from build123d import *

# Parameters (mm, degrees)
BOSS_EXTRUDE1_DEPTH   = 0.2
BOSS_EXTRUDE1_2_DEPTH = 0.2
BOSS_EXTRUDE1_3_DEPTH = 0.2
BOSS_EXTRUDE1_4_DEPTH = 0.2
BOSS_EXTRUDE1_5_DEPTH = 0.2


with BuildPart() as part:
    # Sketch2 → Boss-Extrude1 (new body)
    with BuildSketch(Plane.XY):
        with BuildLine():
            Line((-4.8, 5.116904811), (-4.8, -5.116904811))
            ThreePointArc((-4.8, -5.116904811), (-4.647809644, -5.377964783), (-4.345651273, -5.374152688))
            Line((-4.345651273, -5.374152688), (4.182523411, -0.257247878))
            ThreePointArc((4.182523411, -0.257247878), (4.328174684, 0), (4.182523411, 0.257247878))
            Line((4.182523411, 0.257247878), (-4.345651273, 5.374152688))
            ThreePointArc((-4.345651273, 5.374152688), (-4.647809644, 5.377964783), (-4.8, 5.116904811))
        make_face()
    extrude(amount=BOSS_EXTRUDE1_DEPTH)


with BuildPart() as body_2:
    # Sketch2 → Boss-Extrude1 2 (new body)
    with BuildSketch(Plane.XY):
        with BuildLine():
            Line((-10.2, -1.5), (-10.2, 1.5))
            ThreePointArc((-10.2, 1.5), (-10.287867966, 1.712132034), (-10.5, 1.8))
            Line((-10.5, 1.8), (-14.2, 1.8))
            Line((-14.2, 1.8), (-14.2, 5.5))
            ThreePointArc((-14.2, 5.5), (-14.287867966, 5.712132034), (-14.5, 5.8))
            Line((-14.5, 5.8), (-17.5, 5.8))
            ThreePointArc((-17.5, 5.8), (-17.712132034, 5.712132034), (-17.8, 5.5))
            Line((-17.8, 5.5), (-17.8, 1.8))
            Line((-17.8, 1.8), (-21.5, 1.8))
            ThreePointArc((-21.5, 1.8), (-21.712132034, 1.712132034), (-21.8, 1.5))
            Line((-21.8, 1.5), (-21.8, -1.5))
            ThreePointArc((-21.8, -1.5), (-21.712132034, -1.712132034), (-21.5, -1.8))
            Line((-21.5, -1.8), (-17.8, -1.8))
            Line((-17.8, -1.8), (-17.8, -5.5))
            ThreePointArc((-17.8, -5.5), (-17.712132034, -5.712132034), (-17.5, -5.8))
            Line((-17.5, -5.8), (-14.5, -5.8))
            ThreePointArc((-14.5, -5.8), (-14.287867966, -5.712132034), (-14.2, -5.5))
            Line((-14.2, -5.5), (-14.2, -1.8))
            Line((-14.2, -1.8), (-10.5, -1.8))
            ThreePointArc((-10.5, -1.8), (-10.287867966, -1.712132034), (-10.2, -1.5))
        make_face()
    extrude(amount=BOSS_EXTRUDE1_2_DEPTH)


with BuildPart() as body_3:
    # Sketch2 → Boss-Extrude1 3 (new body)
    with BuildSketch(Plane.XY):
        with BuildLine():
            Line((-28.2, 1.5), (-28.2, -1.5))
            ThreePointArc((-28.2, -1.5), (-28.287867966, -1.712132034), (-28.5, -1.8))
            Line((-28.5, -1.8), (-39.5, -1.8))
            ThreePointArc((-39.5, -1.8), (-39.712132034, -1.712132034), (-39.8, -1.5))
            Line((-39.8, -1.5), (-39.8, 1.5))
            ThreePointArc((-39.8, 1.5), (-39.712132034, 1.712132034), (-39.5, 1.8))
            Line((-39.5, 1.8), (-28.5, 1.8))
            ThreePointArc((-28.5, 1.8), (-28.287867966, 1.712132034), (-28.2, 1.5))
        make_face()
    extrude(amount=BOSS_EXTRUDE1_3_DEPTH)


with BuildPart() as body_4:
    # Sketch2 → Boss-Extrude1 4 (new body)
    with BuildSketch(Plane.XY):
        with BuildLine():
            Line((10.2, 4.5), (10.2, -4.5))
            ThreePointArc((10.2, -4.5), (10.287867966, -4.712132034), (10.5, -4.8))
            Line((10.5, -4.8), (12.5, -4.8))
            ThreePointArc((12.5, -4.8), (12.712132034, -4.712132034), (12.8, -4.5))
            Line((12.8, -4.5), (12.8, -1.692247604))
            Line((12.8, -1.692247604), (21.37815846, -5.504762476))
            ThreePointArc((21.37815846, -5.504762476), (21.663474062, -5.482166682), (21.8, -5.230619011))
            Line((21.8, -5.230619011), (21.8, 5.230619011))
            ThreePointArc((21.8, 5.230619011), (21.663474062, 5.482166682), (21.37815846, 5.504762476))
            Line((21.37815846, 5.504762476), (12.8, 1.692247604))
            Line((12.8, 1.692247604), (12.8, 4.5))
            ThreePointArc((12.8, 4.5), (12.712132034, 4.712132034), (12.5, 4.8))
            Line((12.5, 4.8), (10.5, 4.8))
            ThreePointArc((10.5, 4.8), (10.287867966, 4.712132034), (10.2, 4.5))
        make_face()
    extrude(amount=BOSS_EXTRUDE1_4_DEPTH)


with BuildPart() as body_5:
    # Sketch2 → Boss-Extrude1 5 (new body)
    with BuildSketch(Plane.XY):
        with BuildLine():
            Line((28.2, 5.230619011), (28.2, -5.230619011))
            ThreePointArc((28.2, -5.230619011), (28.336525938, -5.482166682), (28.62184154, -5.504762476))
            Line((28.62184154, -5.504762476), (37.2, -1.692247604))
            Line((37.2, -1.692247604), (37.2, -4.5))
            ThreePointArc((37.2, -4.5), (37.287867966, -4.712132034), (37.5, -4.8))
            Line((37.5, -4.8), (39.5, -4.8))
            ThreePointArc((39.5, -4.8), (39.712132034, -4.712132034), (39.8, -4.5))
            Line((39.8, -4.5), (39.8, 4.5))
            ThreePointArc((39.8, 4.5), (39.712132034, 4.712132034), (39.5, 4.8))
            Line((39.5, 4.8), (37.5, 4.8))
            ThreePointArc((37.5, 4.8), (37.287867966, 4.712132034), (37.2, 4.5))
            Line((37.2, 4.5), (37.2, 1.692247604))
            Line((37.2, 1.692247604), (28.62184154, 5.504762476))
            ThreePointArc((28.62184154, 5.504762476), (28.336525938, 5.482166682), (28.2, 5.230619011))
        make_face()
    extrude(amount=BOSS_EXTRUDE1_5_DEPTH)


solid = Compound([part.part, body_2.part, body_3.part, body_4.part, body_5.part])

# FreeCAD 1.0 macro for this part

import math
import FreeCAD as App
import Part
import Sketcher
Q = App.Units.Quantity

doc = App.newDocument("Part")
body = doc.addObject("PartDesign::Body", "Body")

# Sketch on XY plane
sketch1 = body.newObject("Sketcher::SketchObject", "Sketch")
sketch1.AttachmentSupport = (doc.getObject("XY_Plane"), [""])
sketch1.MapMode = "FlatFace"
sketch1.addGeometry([
    Part.LineSegment(App.Vector(-4.8, 5.12, 0), App.Vector(-4.8, -5.12, 0)),  # 0
    Part.ArcOfCircle(Part.Circle(App.Vector(-4.5, -5.12, 0), App.Vector(0, 0, 1), 0.3), math.radians(180), math.radians(301)),  # 1
    Part.LineSegment(App.Vector(-4.35, -5.37, 0), App.Vector(4.18, -0.26, 0)),  # 2
    Part.ArcOfCircle(Part.Circle(App.Vector(4.03, 0, 0), App.Vector(0, 0, 1), 0.3), math.radians(-59), math.radians(59)),  # 3
    Part.LineSegment(App.Vector(4.18, 0.26, 0), App.Vector(-4.35, 5.37, 0)),  # 4
    Part.ArcOfCircle(Part.Circle(App.Vector(-4.5, 5.12, 0), App.Vector(0, 0, 1), 0.3), math.radians(59), math.radians(180)),  # 5
], False)
sketch1.addConstraint([
    Sketcher.Constraint("Tangent", 0, 2, 1, 1),
    Sketcher.Constraint("Tangent", 1, 2, 2, 1),
    Sketcher.Constraint("Tangent", 2, 2, 3, 1),
    Sketcher.Constraint("Tangent", 3, 2, 4, 1),
    Sketcher.Constraint("Tangent", 4, 2, 5, 1),
    Sketcher.Constraint("Tangent", 5, 2, 0, 1),
    Sketcher.Constraint("Vertical", 0),
    Sketcher.Constraint("Equal", 1, 3),
    Sketcher.Constraint("Equal", 3, 5),
    Sketcher.Constraint("Symmetric", 2, 2, 3, 2, -1),
    Sketcher.Constraint("Radius", 1, Q("0.3 mm")),
    Sketcher.Constraint("DistanceX", 1, 3, -1, 1, Q("4.5 mm")),
    Sketcher.Constraint("DistanceY", 0, 2, 0, 1, Q("10.23381 mm")),
    Sketcher.Constraint("DistanceY", 1, 2, 3, 2, Q("5.631401 mm")),
])
pad1 = body.newObject("PartDesign::Pad", "Pad")
pad1.Profile = sketch1
pad1.Length = 0.2
body2 = doc.addObject("PartDesign::Body", "Body001")

# Sketch on XY plane
sketch2 = body2.newObject("Sketcher::SketchObject", "Sketch001")
sketch2.AttachmentSupport = (doc.getObject("XY_Plane001"), [""])
sketch2.MapMode = "FlatFace"
sketch2.addGeometry([
    Part.LineSegment(App.Vector(-10.2, -1.5, 0), App.Vector(-10.2, 1.5, 0)),  # 0
    Part.ArcOfCircle(Part.Circle(App.Vector(-10.5, 1.5, 0), App.Vector(0, 0, 1), 0.3), math.radians(0), math.radians(90)),  # 1
    Part.LineSegment(App.Vector(-10.5, 1.8, 0), App.Vector(-14.2, 1.8, 0)),  # 2
    Part.LineSegment(App.Vector(-14.2, 1.8, 0), App.Vector(-14.2, 5.5, 0)),  # 3
    Part.ArcOfCircle(Part.Circle(App.Vector(-14.5, 5.5, 0), App.Vector(0, 0, 1), 0.3), math.radians(0), math.radians(90)),  # 4
    Part.LineSegment(App.Vector(-14.5, 5.8, 0), App.Vector(-17.5, 5.8, 0)),  # 5
    Part.ArcOfCircle(Part.Circle(App.Vector(-17.5, 5.5, 0), App.Vector(0, 0, 1), 0.3), math.radians(90), math.radians(180)),  # 6
    Part.LineSegment(App.Vector(-17.8, 5.5, 0), App.Vector(-17.8, 1.8, 0)),  # 7
    Part.LineSegment(App.Vector(-17.8, 1.8, 0), App.Vector(-21.5, 1.8, 0)),  # 8
    Part.ArcOfCircle(Part.Circle(App.Vector(-21.5, 1.5, 0), App.Vector(0, 0, 1), 0.3), math.radians(90), math.radians(180)),  # 9
    Part.LineSegment(App.Vector(-21.8, 1.5, 0), App.Vector(-21.8, -1.5, 0)),  # 10
    Part.ArcOfCircle(Part.Circle(App.Vector(-21.5, -1.5, 0), App.Vector(0, 0, 1), 0.3), math.radians(-180), math.radians(-90)),  # 11
    Part.LineSegment(App.Vector(-21.5, -1.8, 0), App.Vector(-17.8, -1.8, 0)),  # 12
    Part.LineSegment(App.Vector(-17.8, -1.8, 0), App.Vector(-17.8, -5.5, 0)),  # 13
    Part.ArcOfCircle(Part.Circle(App.Vector(-17.5, -5.5, 0), App.Vector(0, 0, 1), 0.3), math.radians(-180), math.radians(-90)),  # 14
    Part.LineSegment(App.Vector(-17.5, -5.8, 0), App.Vector(-14.5, -5.8, 0)),  # 15
    Part.ArcOfCircle(Part.Circle(App.Vector(-14.5, -5.5, 0), App.Vector(0, 0, 1), 0.3), math.radians(-90), math.radians(0)),  # 16
    Part.LineSegment(App.Vector(-14.2, -5.5, 0), App.Vector(-14.2, -1.8, 0)),  # 17
    Part.LineSegment(App.Vector(-14.2, -1.8, 0), App.Vector(-10.5, -1.8, 0)),  # 18
    Part.ArcOfCircle(Part.Circle(App.Vector(-10.5, -1.5, 0), App.Vector(0, 0, 1), 0.3), math.radians(-90), math.radians(0)),  # 19
], False)
sketch2.addConstraint([
    Sketcher.Constraint("Tangent", 0, 2, 1, 1),
    Sketcher.Constraint("Tangent", 1, 2, 2, 1),
    Sketcher.Constraint("Coincident", 2, 2, 3, 1),
    Sketcher.Constraint("Tangent", 3, 2, 4, 1),
    Sketcher.Constraint("Tangent", 4, 2, 5, 1),
    Sketcher.Constraint("Tangent", 5, 2, 6, 1),
    Sketcher.Constraint("Tangent", 6, 2, 7, 1),
    Sketcher.Constraint("Coincident", 7, 2, 8, 1),
    Sketcher.Constraint("Tangent", 8, 2, 9, 1),
    Sketcher.Constraint("Tangent", 9, 2, 10, 1),
    Sketcher.Constraint("Tangent", 10, 2, 11, 1),
    Sketcher.Constraint("Tangent", 11, 2, 12, 1),
    Sketcher.Constraint("Coincident", 12, 2, 13, 1),
    Sketcher.Constraint("Tangent", 13, 2, 14, 1),
    Sketcher.Constraint("Tangent", 14, 2, 15, 1),
    Sketcher.Constraint("Tangent", 15, 2, 16, 1),
    Sketcher.Constraint("Tangent", 16, 2, 17, 1),
    Sketcher.Constraint("Coincident", 17, 2, 18, 1),
    Sketcher.Constraint("Tangent", 18, 2, 19, 1),
    Sketcher.Constraint("Tangent", 19, 2, 0, 1),
    Sketcher.Constraint("Vertical", 0),
    Sketcher.Constraint("Horizontal", 2),
    Sketcher.Constraint("Vertical", 3),
    Sketcher.Constraint("Horizontal", 5),
    Sketcher.Constraint("Vertical", 7),
    Sketcher.Constraint("Horizontal", 8),
    Sketcher.Constraint("Vertical", 10),
    Sketcher.Constraint("Horizontal", 12),
    Sketcher.Constraint("Vertical", 13),
    Sketcher.Constraint("Horizontal", 15),
    Sketcher.Constraint("Vertical", 17),
    Sketcher.Constraint("Horizontal", 18),
    Sketcher.Constraint("Equal", 1, 4),
    Sketcher.Constraint("Equal", 4, 6),
    Sketcher.Constraint("Equal", 6, 9),
    Sketcher.Constraint("Equal", 9, 11),
    Sketcher.Constraint("Equal", 11, 14),
    Sketcher.Constraint("Equal", 14, 16),
    Sketcher.Constraint("Equal", 16, 19),
    Sketcher.Constraint("Symmetric", 6, 3, 14, 3, -1),
    Sketcher.Constraint("Symmetric", 2, 2, 17, 2, -1),
    Sketcher.Constraint("Horizontal", 1, 3, 9, 3),
    Sketcher.Constraint("Horizontal", 11, 3, 19, 3),
    Sketcher.Constraint("Equal", 2, 8),
    Sketcher.Constraint("Equal", 15, 0),
    Sketcher.Constraint("Equal", 18, 3),
    Sketcher.Constraint("Radius", 1, Q("0.3 mm")),
    Sketcher.Constraint("DistanceX", 5, 2, 5, 1, Q("3 mm")),
    Sketcher.Constraint("DistanceX", 2, 2, 2, 1, Q("3.7 mm")),
    Sketcher.Constraint("DistanceX", 1, 3, -1, 1, Q("10.5 mm")),
])
pad2 = body2.newObject("PartDesign::Pad", "Pad001")
pad2.Profile = sketch2
pad2.Length = 0.2
body3 = doc.addObject("PartDesign::Body", "Body002")

# Sketch on XY plane
sketch3 = body3.newObject("Sketcher::SketchObject", "Sketch002")
sketch3.AttachmentSupport = (doc.getObject("XY_Plane002"), [""])
sketch3.MapMode = "FlatFace"
sketch3.addGeometry([
    Part.LineSegment(App.Vector(-28.2, -1.5, 0), App.Vector(-28.2, 1.5, 0)),  # 0
    Part.ArcOfCircle(Part.Circle(App.Vector(-28.5, 1.5, 0), App.Vector(0, 0, 1), 0.3), math.radians(0), math.radians(90)),  # 1
    Part.LineSegment(App.Vector(-28.5, 1.8, 0), App.Vector(-39.5, 1.8, 0)),  # 2
    Part.ArcOfCircle(Part.Circle(App.Vector(-39.5, 1.5, 0), App.Vector(0, 0, 1), 0.3), math.radians(90), math.radians(180)),  # 3
    Part.LineSegment(App.Vector(-39.8, 1.5, 0), App.Vector(-39.8, -1.5, 0)),  # 4
    Part.ArcOfCircle(Part.Circle(App.Vector(-39.5, -1.5, 0), App.Vector(0, 0, 1), 0.3), math.radians(-180), math.radians(-90)),  # 5
    Part.LineSegment(App.Vector(-39.5, -1.8, 0), App.Vector(-28.5, -1.8, 0)),  # 6
    Part.ArcOfCircle(Part.Circle(App.Vector(-28.5, -1.5, 0), App.Vector(0, 0, 1), 0.3), math.radians(-90), math.radians(0)),  # 7
], False)
sketch3.addConstraint([
    Sketcher.Constraint("Tangent", 0, 2, 1, 1),
    Sketcher.Constraint("Tangent", 1, 2, 2, 1),
    Sketcher.Constraint("Tangent", 2, 2, 3, 1),
    Sketcher.Constraint("Tangent", 3, 2, 4, 1),
    Sketcher.Constraint("Tangent", 4, 2, 5, 1),
    Sketcher.Constraint("Tangent", 5, 2, 6, 1),
    Sketcher.Constraint("Tangent", 6, 2, 7, 1),
    Sketcher.Constraint("Tangent", 7, 2, 0, 1),
    Sketcher.Constraint("Vertical", 0),
    Sketcher.Constraint("Horizontal", 2),
    Sketcher.Constraint("Vertical", 4),
    Sketcher.Constraint("Horizontal", 6),
    Sketcher.Constraint("Equal", 1, 3),
    Sketcher.Constraint("Equal", 3, 5),
    Sketcher.Constraint("Equal", 5, 7),
    Sketcher.Constraint("Radius", 1, Q("0.3 mm")),
    Sketcher.Constraint("DistanceX", 2, 2, 2, 1, Q("11 mm")),
    Sketcher.Constraint("DistanceY", 0, 1, 0, 2, Q("3 mm")),
    Sketcher.Constraint("DistanceX", 1, 3, -1, 1, Q("28.5 mm")),
    Sketcher.Constraint("DistanceY", -1, 1, 1, 3, Q("1.5 mm")),
])
pad3 = body3.newObject("PartDesign::Pad", "Pad002")
pad3.Profile = sketch3
pad3.Length = 0.2
body4 = doc.addObject("PartDesign::Body", "Body003")

# Sketch on XY plane
sketch4 = body4.newObject("Sketcher::SketchObject", "Sketch003")
sketch4.AttachmentSupport = (doc.getObject("XY_Plane003"), [""])
sketch4.MapMode = "FlatFace"
sketch4.addGeometry([
    Part.LineSegment(App.Vector(10.2, 4.5, 0), App.Vector(10.2, -4.5, 0)),  # 0
    Part.ArcOfCircle(Part.Circle(App.Vector(10.5, -4.5, 0), App.Vector(0, 0, 1), 0.3), math.radians(-180), math.radians(-90)),  # 1
    Part.LineSegment(App.Vector(10.5, -4.8, 0), App.Vector(12.5, -4.8, 0)),  # 2
    Part.ArcOfCircle(Part.Circle(App.Vector(12.5, -4.5, 0), App.Vector(0, 0, 1), 0.3), math.radians(-90), math.radians(0)),  # 3
    Part.LineSegment(App.Vector(12.8, -4.5, 0), App.Vector(12.8, -1.69, 0)),  # 4
    Part.LineSegment(App.Vector(12.8, -1.69, 0), App.Vector(21.38, -5.5, 0)),  # 5
    Part.ArcOfCircle(Part.Circle(App.Vector(21.5, -5.23, 0), App.Vector(0, 0, 1), 0.3), math.radians(-114), math.radians(0)),  # 6
    Part.LineSegment(App.Vector(21.8, -5.23, 0), App.Vector(21.8, 5.23, 0)),  # 7
    Part.ArcOfCircle(Part.Circle(App.Vector(21.5, 5.23, 0), App.Vector(0, 0, 1), 0.3), math.radians(0), math.radians(114)),  # 8
    Part.LineSegment(App.Vector(21.38, 5.5, 0), App.Vector(12.8, 1.69, 0)),  # 9
    Part.LineSegment(App.Vector(12.8, 1.69, 0), App.Vector(12.8, 4.5, 0)),  # 10
    Part.ArcOfCircle(Part.Circle(App.Vector(12.5, 4.5, 0), App.Vector(0, 0, 1), 0.3), math.radians(0), math.radians(90)),  # 11
    Part.LineSegment(App.Vector(12.5, 4.8, 0), App.Vector(10.5, 4.8, 0)),  # 12
    Part.ArcOfCircle(Part.Circle(App.Vector(10.5, 4.5, 0), App.Vector(0, 0, 1), 0.3), math.radians(90), math.radians(180)),  # 13
], False)
sketch4.addConstraint([
    Sketcher.Constraint("Tangent", 0, 2, 1, 1),
    Sketcher.Constraint("Tangent", 1, 2, 2, 1),
    Sketcher.Constraint("Tangent", 2, 2, 3, 1),
    Sketcher.Constraint("Tangent", 3, 2, 4, 1),
    Sketcher.Constraint("Coincident", 4, 2, 5, 1),
    Sketcher.Constraint("Tangent", 5, 2, 6, 1),
    Sketcher.Constraint("Tangent", 6, 2, 7, 1),
    Sketcher.Constraint("Tangent", 7, 2, 8, 1),
    Sketcher.Constraint("Tangent", 8, 2, 9, 1),
    Sketcher.Constraint("Coincident", 9, 2, 10, 1),
    Sketcher.Constraint("Tangent", 10, 2, 11, 1),
    Sketcher.Constraint("Tangent", 11, 2, 12, 1),
    Sketcher.Constraint("Tangent", 12, 2, 13, 1),
    Sketcher.Constraint("Tangent", 13, 2, 0, 1),
    Sketcher.Constraint("Vertical", 0),
    Sketcher.Constraint("Horizontal", 2),
    Sketcher.Constraint("Vertical", 4),
    Sketcher.Constraint("Vertical", 7),
    Sketcher.Constraint("Vertical", 10),
    Sketcher.Constraint("Horizontal", 12),
    Sketcher.Constraint("Equal", 1, 3),
    Sketcher.Constraint("Equal", 3, 6),
    Sketcher.Constraint("Equal", 6, 8),
    Sketcher.Constraint("Equal", 8, 11),
    Sketcher.Constraint("Equal", 11, 13),
    Sketcher.Constraint("Symmetric", 3, 3, 11, 3, -1),
    Sketcher.Constraint("Symmetric", 5, 2, 8, 2, -1),
    Sketcher.Constraint("Radius", 1, Q("0.3 mm")),
    Sketcher.Constraint("DistanceX", 2, 1, 2, 2, Q("2 mm")),
    Sketcher.Constraint("DistanceY", 0, 2, 0, 1, Q("9 mm")),
    Sketcher.Constraint("DistanceX", 3, 3, 6, 3, Q("9 mm")),
    Sketcher.Constraint("DistanceX", -1, 1, 1, 3, Q("10.5 mm")),
    Sketcher.Constraint("DistanceY", 7, 1, 7, 2, Q("10.461238 mm")),
    Sketcher.Constraint("Distance", 5, Q("9.387229 mm")),
])
pad4 = body4.newObject("PartDesign::Pad", "Pad003")
pad4.Profile = sketch4
pad4.Length = 0.2
body5 = doc.addObject("PartDesign::Body", "Body004")

# Sketch on XY plane
sketch5 = body5.newObject("Sketcher::SketchObject", "Sketch004")
sketch5.AttachmentSupport = (doc.getObject("XY_Plane004"), [""])
sketch5.MapMode = "FlatFace"
sketch5.addGeometry([
    Part.LineSegment(App.Vector(28.2, 5.23, 0), App.Vector(28.2, -5.23, 0)),  # 0
    Part.ArcOfCircle(Part.Circle(App.Vector(28.5, -5.23, 0), App.Vector(0, 0, 1), 0.3), math.radians(-180), math.radians(-66)),  # 1
    Part.LineSegment(App.Vector(28.62, -5.5, 0), App.Vector(37.2, -1.69, 0)),  # 2
    Part.LineSegment(App.Vector(37.2, -1.69, 0), App.Vector(37.2, -4.5, 0)),  # 3
    Part.ArcOfCircle(Part.Circle(App.Vector(37.5, -4.5, 0), App.Vector(0, 0, 1), 0.3), math.radians(-180), math.radians(-90)),  # 4
    Part.LineSegment(App.Vector(37.5, -4.8, 0), App.Vector(39.5, -4.8, 0)),  # 5
    Part.ArcOfCircle(Part.Circle(App.Vector(39.5, -4.5, 0), App.Vector(0, 0, 1), 0.3), math.radians(-90), math.radians(0)),  # 6
    Part.LineSegment(App.Vector(39.8, -4.5, 0), App.Vector(39.8, 4.5, 0)),  # 7
    Part.ArcOfCircle(Part.Circle(App.Vector(39.5, 4.5, 0), App.Vector(0, 0, 1), 0.3), math.radians(0), math.radians(90)),  # 8
    Part.LineSegment(App.Vector(39.5, 4.8, 0), App.Vector(37.5, 4.8, 0)),  # 9
    Part.ArcOfCircle(Part.Circle(App.Vector(37.5, 4.5, 0), App.Vector(0, 0, 1), 0.3), math.radians(90), math.radians(180)),  # 10
    Part.LineSegment(App.Vector(37.2, 4.5, 0), App.Vector(37.2, 1.69, 0)),  # 11
    Part.LineSegment(App.Vector(37.2, 1.69, 0), App.Vector(28.62, 5.5, 0)),  # 12
    Part.ArcOfCircle(Part.Circle(App.Vector(28.5, 5.23, 0), App.Vector(0, 0, 1), 0.3), math.radians(66), math.radians(180)),  # 13
], False)
sketch5.addConstraint([
    Sketcher.Constraint("Tangent", 0, 2, 1, 1),
    Sketcher.Constraint("Tangent", 1, 2, 2, 1),
    Sketcher.Constraint("Coincident", 2, 2, 3, 1),
    Sketcher.Constraint("Tangent", 3, 2, 4, 1),
    Sketcher.Constraint("Tangent", 4, 2, 5, 1),
    Sketcher.Constraint("Tangent", 5, 2, 6, 1),
    Sketcher.Constraint("Tangent", 6, 2, 7, 1),
    Sketcher.Constraint("Tangent", 7, 2, 8, 1),
    Sketcher.Constraint("Tangent", 8, 2, 9, 1),
    Sketcher.Constraint("Tangent", 9, 2, 10, 1),
    Sketcher.Constraint("Tangent", 10, 2, 11, 1),
    Sketcher.Constraint("Coincident", 11, 2, 12, 1),
    Sketcher.Constraint("Tangent", 12, 2, 13, 1),
    Sketcher.Constraint("Tangent", 13, 2, 0, 1),
    Sketcher.Constraint("Vertical", 0),
    Sketcher.Constraint("Vertical", 3),
    Sketcher.Constraint("Horizontal", 5),
    Sketcher.Constraint("Vertical", 7),
    Sketcher.Constraint("Horizontal", 9),
    Sketcher.Constraint("Vertical", 11),
    Sketcher.Constraint("Equal", 1, 4),
    Sketcher.Constraint("Equal", 4, 6),
    Sketcher.Constraint("Equal", 6, 8),
    Sketcher.Constraint("Equal", 8, 10),
    Sketcher.Constraint("Equal", 10, 13),
    Sketcher.Constraint("Symmetric", 4, 3, 10, 3, -1),
    Sketcher.Constraint("Symmetric", 1, 2, 12, 2, -1),
    Sketcher.Constraint("Radius", 1, Q("0.3 mm")),
    Sketcher.Constraint("DistanceX", 5, 1, 5, 2, Q("2 mm")),
    Sketcher.Constraint("DistanceY", 7, 1, 7, 2, Q("9 mm")),
    Sketcher.Constraint("DistanceX", 1, 3, 4, 3, Q("9 mm")),
    Sketcher.Constraint("DistanceX", -1, 1, 1, 3, Q("28.5 mm")),
    Sketcher.Constraint("DistanceY", 0, 2, 0, 1, Q("10.461238 mm")),
    Sketcher.Constraint("Distance", 2, Q("9.387229 mm")),
])
pad5 = body5.newObject("PartDesign::Pad", "Pad004")
pad5.Profile = sketch5
pad5.Length = 0.2

doc.recompute()
